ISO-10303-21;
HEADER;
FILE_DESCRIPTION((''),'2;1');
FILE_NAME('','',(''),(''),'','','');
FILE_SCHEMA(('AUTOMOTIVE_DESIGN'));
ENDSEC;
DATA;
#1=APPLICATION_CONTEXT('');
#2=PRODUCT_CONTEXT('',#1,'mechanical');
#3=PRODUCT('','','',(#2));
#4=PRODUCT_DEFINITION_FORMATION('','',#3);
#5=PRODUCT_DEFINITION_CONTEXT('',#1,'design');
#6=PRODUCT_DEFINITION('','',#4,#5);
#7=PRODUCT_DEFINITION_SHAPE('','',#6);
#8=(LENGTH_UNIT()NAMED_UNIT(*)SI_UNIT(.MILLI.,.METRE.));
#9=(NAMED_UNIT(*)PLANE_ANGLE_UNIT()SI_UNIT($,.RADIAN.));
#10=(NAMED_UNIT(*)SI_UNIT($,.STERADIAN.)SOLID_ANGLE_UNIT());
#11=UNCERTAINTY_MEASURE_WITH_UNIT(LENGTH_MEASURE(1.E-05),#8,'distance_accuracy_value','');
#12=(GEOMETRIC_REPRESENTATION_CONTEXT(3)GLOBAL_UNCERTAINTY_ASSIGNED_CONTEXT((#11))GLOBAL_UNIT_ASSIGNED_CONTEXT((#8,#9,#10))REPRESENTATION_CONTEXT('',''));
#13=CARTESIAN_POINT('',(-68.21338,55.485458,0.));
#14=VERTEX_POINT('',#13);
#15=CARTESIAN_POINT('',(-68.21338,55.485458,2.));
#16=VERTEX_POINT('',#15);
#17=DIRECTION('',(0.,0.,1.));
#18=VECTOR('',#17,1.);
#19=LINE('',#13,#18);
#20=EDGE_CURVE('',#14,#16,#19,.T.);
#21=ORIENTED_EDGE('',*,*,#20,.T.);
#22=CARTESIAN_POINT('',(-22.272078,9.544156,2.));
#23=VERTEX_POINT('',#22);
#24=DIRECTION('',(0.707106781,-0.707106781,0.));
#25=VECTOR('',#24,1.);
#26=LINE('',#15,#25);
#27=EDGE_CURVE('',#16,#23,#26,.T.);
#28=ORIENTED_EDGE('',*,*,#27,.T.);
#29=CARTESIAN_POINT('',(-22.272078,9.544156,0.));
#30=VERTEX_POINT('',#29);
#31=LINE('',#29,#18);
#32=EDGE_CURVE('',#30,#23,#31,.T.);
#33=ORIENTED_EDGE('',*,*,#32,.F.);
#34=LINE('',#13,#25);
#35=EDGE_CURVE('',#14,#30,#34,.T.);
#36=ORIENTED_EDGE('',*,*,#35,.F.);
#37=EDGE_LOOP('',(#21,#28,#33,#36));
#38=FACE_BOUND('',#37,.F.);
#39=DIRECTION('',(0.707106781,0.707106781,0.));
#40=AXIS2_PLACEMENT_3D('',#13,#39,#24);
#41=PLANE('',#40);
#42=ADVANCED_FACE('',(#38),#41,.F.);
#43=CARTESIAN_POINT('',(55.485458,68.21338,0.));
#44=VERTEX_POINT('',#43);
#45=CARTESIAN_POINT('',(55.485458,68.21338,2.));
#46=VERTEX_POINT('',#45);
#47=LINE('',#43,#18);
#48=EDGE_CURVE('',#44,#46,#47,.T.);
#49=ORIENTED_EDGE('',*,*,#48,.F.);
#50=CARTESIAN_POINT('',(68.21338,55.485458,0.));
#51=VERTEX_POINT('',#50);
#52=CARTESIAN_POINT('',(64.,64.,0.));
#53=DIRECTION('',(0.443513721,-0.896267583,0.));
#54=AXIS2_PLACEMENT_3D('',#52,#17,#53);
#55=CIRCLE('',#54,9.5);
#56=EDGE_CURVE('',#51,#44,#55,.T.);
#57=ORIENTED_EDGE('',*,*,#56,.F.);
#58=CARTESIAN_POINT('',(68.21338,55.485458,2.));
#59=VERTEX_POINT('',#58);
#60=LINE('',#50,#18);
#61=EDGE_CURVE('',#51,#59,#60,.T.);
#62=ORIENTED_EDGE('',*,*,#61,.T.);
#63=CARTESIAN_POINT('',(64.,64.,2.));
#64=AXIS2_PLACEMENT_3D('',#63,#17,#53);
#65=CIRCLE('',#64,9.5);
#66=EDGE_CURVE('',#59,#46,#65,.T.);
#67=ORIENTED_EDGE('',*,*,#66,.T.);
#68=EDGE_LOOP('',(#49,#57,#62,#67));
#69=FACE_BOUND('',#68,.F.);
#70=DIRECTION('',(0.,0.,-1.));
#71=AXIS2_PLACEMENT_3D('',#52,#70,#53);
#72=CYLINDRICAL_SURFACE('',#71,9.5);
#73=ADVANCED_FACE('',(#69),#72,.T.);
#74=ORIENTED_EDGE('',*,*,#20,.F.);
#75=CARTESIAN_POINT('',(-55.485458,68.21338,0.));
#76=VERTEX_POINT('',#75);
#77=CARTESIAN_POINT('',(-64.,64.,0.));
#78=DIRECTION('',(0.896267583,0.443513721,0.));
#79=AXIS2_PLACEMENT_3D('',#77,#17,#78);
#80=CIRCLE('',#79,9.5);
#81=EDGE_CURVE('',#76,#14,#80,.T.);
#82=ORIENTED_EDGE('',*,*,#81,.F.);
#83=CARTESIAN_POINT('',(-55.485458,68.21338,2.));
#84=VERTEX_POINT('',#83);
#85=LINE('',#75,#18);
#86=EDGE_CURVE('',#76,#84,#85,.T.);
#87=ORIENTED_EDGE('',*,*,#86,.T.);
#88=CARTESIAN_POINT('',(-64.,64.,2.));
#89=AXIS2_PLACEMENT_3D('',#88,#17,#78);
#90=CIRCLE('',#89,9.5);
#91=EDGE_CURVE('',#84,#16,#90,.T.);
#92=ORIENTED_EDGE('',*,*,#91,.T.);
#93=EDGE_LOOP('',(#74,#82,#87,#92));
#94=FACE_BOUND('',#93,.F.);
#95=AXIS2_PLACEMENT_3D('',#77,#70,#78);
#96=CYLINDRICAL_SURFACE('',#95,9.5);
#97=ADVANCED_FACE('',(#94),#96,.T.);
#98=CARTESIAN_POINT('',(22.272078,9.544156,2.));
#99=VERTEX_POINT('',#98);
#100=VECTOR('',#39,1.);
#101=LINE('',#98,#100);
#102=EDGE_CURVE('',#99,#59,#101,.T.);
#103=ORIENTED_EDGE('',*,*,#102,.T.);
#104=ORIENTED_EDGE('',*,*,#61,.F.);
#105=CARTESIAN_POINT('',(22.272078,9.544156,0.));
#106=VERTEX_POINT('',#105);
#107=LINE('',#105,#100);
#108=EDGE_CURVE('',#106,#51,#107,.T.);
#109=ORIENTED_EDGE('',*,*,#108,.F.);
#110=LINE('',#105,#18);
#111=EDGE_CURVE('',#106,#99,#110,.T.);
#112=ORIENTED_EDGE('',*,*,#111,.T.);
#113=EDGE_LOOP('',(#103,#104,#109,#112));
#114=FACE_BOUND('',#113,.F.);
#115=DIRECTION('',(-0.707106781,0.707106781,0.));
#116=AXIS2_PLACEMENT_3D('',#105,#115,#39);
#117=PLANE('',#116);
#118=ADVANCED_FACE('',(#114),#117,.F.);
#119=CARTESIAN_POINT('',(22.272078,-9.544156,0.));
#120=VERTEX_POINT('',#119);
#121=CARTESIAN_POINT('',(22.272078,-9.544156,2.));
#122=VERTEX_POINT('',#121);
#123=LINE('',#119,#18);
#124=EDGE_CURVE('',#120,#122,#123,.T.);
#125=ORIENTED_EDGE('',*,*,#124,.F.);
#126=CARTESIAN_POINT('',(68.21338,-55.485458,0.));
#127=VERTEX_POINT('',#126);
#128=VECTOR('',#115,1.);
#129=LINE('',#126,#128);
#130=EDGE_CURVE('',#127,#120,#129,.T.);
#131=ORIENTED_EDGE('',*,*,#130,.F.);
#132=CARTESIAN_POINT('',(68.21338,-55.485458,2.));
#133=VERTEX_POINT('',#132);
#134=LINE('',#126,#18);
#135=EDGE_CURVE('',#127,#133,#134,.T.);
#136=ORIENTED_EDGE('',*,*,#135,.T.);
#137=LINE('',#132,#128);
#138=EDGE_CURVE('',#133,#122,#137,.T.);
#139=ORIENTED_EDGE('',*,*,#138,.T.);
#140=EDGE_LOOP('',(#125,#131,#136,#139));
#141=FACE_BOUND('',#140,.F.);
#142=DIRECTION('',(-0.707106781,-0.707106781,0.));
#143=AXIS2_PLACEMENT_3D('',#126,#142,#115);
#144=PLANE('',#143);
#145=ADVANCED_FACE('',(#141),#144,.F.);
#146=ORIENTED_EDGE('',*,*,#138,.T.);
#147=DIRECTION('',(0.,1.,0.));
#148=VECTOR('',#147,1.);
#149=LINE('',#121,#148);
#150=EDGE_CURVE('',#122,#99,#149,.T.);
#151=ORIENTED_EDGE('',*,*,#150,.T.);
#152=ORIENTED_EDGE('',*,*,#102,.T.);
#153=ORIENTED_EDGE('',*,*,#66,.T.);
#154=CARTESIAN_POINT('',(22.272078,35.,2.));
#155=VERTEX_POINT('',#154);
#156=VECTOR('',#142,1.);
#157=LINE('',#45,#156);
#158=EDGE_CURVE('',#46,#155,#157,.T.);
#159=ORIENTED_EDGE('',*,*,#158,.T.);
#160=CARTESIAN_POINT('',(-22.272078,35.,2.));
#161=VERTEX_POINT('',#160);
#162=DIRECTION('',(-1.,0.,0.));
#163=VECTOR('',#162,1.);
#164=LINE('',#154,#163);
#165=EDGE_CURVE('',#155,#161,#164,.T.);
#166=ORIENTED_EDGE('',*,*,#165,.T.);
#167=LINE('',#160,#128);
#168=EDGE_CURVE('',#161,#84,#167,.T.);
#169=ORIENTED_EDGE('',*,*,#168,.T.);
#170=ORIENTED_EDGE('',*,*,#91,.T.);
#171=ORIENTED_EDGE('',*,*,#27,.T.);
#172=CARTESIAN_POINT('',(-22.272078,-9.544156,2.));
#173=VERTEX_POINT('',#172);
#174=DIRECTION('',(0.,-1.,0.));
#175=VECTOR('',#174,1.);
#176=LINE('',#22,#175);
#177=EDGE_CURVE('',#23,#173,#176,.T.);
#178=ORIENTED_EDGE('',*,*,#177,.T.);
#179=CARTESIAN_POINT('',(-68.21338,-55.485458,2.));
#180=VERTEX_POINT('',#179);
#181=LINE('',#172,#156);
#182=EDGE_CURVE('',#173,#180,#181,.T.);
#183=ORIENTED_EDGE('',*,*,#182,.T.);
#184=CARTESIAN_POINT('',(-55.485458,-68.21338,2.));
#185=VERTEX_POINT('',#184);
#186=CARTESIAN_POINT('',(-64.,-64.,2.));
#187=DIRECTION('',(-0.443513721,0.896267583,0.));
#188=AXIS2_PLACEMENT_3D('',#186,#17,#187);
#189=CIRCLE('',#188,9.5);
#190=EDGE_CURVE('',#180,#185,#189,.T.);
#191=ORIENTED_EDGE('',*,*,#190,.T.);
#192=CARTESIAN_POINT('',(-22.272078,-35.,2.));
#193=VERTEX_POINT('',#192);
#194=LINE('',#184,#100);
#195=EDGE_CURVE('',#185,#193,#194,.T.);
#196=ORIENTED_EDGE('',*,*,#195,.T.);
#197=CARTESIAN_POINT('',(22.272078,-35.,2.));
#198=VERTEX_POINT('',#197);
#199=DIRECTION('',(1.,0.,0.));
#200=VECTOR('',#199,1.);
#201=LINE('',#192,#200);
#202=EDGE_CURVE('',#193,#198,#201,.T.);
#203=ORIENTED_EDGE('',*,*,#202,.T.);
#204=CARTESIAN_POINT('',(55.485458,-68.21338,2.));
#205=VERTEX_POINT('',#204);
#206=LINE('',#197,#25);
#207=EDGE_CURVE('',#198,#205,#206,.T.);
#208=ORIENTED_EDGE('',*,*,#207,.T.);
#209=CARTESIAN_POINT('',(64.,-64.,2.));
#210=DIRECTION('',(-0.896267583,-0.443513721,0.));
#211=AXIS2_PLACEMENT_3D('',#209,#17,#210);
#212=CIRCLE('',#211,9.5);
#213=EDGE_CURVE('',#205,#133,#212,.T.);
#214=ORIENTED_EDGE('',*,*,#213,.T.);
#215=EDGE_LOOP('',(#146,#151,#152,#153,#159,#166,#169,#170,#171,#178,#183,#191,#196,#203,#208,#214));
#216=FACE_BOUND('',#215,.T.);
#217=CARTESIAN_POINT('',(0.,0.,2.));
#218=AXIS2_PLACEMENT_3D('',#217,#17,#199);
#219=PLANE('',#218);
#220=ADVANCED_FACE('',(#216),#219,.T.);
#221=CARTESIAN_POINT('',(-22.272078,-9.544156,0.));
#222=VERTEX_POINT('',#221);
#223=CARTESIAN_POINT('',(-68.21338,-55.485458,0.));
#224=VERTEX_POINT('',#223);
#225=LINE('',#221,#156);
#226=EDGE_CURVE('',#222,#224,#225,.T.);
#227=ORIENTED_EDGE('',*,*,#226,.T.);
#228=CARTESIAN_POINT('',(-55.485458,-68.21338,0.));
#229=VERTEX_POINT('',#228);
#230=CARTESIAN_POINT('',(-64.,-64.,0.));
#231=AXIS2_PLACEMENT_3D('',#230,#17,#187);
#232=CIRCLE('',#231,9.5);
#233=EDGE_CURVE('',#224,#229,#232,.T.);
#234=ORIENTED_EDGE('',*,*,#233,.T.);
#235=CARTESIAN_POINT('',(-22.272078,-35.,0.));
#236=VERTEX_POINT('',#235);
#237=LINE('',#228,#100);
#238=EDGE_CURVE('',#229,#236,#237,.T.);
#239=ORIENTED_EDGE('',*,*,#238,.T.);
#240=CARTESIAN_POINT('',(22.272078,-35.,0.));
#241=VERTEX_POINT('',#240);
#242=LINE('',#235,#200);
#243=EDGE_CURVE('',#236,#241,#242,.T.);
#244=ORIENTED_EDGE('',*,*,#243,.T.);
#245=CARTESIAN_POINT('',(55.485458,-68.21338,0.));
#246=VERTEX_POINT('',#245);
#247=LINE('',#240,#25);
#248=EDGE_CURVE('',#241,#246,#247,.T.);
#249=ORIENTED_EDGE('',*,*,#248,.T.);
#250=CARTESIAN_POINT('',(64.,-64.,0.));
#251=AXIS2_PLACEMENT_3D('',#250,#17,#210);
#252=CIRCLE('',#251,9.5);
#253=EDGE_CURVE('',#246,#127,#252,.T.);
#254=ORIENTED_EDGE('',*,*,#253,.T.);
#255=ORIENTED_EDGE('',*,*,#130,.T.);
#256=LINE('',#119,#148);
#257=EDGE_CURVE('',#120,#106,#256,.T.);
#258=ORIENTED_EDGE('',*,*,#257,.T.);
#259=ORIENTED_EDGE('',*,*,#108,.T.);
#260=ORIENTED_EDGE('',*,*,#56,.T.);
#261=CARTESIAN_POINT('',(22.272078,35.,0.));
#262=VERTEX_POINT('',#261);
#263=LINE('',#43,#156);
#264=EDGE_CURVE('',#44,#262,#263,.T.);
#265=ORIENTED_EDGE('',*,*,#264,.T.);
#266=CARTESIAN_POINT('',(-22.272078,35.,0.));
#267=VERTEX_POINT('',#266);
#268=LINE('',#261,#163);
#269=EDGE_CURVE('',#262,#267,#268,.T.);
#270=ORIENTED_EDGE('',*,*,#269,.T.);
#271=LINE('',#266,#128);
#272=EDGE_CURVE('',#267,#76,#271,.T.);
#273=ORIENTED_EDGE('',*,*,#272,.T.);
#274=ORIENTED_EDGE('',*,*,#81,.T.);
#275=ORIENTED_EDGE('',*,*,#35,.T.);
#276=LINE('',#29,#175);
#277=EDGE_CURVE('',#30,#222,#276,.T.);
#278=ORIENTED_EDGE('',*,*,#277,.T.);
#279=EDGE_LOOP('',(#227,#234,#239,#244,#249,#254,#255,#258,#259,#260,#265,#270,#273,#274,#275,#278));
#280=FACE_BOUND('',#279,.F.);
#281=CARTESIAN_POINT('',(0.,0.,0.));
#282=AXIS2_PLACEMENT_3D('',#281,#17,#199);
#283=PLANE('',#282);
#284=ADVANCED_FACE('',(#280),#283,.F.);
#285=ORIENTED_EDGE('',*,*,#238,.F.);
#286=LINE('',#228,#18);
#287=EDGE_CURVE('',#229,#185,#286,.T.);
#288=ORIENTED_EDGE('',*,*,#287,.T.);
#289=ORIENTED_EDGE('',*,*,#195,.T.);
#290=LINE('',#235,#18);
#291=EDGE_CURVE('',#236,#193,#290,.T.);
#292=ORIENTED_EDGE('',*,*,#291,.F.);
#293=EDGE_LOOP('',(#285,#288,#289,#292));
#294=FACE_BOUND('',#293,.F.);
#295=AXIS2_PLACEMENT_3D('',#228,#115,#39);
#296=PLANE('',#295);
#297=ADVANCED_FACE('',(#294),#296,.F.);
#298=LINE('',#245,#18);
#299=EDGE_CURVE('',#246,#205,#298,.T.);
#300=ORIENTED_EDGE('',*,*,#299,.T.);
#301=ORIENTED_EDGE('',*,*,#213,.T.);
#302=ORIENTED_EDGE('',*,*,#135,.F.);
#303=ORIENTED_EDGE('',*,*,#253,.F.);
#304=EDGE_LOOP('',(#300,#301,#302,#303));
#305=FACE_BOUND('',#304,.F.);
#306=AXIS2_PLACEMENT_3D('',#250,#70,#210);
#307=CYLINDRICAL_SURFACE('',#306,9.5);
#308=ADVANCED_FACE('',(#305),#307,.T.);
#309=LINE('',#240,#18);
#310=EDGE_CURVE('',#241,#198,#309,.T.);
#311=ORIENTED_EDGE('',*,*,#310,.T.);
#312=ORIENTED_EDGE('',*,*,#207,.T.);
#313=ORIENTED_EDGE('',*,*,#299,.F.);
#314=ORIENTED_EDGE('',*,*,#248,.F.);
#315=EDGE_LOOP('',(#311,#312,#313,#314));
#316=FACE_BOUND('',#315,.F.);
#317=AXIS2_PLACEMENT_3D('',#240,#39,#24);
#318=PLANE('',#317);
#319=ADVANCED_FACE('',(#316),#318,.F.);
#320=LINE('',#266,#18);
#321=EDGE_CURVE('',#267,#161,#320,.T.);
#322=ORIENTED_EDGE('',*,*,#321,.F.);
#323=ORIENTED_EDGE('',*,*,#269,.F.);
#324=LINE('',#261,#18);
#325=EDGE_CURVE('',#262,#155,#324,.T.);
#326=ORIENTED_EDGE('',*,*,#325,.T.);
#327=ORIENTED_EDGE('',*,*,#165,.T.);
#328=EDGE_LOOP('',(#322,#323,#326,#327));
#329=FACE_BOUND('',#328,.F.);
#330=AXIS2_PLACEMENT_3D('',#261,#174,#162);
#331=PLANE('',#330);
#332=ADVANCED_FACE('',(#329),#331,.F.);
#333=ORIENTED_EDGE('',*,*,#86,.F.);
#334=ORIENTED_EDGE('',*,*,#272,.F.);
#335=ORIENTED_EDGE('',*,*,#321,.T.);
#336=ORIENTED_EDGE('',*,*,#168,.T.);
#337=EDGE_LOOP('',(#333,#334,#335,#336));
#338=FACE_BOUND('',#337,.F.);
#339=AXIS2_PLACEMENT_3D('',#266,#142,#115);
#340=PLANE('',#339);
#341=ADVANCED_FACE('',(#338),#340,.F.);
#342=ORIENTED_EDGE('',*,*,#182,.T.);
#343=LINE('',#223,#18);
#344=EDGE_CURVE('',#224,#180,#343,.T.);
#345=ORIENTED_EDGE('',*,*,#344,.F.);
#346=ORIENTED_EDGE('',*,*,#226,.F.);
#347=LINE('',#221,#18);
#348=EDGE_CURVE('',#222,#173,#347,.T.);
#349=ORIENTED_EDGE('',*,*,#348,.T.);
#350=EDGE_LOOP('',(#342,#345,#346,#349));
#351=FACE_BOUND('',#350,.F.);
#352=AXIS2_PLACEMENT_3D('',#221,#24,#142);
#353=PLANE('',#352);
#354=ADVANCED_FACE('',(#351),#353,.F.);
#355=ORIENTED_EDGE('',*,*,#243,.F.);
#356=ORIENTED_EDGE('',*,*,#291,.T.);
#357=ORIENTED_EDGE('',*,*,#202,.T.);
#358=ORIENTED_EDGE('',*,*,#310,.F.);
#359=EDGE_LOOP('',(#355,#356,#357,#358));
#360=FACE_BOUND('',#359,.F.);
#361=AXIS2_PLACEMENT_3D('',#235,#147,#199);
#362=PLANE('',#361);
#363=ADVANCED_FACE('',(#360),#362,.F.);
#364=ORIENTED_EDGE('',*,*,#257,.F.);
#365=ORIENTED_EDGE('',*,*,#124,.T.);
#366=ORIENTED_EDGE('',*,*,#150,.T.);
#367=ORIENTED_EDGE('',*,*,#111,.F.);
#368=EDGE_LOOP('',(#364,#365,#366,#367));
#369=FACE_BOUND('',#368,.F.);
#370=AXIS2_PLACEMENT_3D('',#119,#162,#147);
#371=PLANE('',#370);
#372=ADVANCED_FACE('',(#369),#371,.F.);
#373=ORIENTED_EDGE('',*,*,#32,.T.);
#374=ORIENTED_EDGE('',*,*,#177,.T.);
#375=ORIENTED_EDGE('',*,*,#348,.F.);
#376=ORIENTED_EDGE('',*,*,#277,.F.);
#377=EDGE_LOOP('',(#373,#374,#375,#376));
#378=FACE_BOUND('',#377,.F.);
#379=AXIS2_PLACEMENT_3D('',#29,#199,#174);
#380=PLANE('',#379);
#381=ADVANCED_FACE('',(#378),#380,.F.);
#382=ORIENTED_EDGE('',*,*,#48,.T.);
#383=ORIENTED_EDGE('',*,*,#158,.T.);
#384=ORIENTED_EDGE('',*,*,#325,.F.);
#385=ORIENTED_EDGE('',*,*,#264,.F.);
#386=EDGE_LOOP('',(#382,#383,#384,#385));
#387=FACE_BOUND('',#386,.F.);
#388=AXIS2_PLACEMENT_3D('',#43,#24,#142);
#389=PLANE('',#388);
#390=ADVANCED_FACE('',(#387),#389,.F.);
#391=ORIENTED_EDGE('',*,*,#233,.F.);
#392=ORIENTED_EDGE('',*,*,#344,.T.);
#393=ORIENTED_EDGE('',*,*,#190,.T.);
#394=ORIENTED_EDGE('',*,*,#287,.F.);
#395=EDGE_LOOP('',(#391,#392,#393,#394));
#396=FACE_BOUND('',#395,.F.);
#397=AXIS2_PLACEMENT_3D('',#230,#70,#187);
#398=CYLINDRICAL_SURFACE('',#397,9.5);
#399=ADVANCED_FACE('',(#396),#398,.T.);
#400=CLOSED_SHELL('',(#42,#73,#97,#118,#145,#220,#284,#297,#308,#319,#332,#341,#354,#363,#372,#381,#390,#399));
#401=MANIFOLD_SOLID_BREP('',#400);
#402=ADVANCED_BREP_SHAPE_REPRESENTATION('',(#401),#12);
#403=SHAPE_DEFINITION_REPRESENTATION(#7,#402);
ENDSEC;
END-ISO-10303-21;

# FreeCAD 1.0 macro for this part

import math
import FreeCAD as App
import Part
import Sketcher
from FreeCAD import Vector

doc = App.newDocument("Part")
body = doc.addObject("PartDesign::Body", "Body")

# Sketch on XY plane
sketch1 = body.newObject("Sketcher::SketchObject", "Sketch")
sketch1.AttachmentSupport = (doc.getObject("XY_Plane"), [""])
sketch1.MapMode = "FlatFace"
sketch1.addGeometry(Part.LineSegment(Vector(-22, 35, 0), Vector(-55, 68, 0)), False)
sketch1.addGeometry(Part.ArcOfCircle(Part.Circle(Vector(-64, 64, 0), Vector(0, 0, 1), 9), math.radians(26), math.radians(244)), False)
sketch1.addGeometry(Part.LineSegment(Vector(-68, 55, 0), Vector(-22, 10, 0)), False)
sketch1.addGeometry(Part.LineSegment(Vector(-22, 10, 0), Vector(-22, -10, 0)), False)
sketch1.addGeometry(Part.LineSegment(Vector(-22, -10, 0), Vector(-68, -55, 0)), False)
sketch1.addGeometry(Part.ArcOfCircle(Part.Circle(Vector(-64, -64, 0), Vector(0, 0, 1), 9), math.radians(116), math.radians(334)), False)
sketch1.addGeometry(Part.LineSegment(Vector(-55, -68, 0), Vector(-22, -35, 0)), False)
sketch1.addGeometry(Part.LineSegment(Vector(-22, -35, 0), Vector(22, -35, 0)), False)
sketch1.addGeometry(Part.LineSegment(Vector(22, -35, 0), Vector(55, -68, 0)), False)
sketch1.addGeometry(Part.ArcOfCircle(Part.Circle(Vector(64, -64, 0), Vector(0, 0, 1), 9), math.radians(-154), math.radians(64)), False)
sketch1.addGeometry(Part.LineSegment(Vector(68, -55, 0), Vector(22, -10, 0)), False)
sketch1.addGeometry(Part.LineSegment(Vector(22, -10, 0), Vector(22, 10, 0)), False)
sketch1.addGeometry(Part.LineSegment(Vector(22, 10, 0), Vector(68, 55, 0)), False)
sketch1.addGeometry(Part.ArcOfCircle(Part.Circle(Vector(64, 64, 0), Vector(0, 0, 1), 9), math.radians(-64), math.radians(154)), False)
sketch1.addGeometry(Part.LineSegment(Vector(55, 68, 0), Vector(22, 35, 0)), False)
sketch1.addGeometry(Part.LineSegment(Vector(22, 35, 0), Vector(-22, 35, 0)), False)
sketch1.addConstraint(Sketcher.Constraint("Coincident", 0, 2, 1, 1))
sketch1.addConstraint(Sketcher.Constraint("Coincident", 1, 2, 2, 1))
sketch1.addConstraint(Sketcher.Constraint("Coincident", 2, 2, 3, 1))
sketch1.addConstraint(Sketcher.Constraint("Coincident", 3, 2, 4, 1))
sketch1.addConstraint(Sketcher.Constraint("Coincident", 4, 2, 5, 1))
sketch1.addConstraint(Sketcher.Constraint("Coincident", 5, 2, 6, 1))
sketch1.addConstraint(Sketcher.Constraint("Coincident", 6, 2, 7, 1))
sketch1.addConstraint(Sketcher.Constraint("Coincident", 7, 2, 8, 1))
sketch1.addConstraint(Sketcher.Constraint("Coincident", 8, 2, 9, 1))
sketch1.addConstraint(Sketcher.Constraint("Coincident", 9, 2, 10, 1))
sketch1.addConstraint(Sketcher.Constraint("Coincident", 10, 2, 11, 1))
sketch1.addConstraint(Sketcher.Constraint("Coincident", 11, 2, 12, 1))
sketch1.addConstraint(Sketcher.Constraint("Coincident", 12, 2, 13, 1))
sketch1.addConstraint(Sketcher.Constraint("Coincident", 13, 2, 14, 1))
sketch1.addConstraint(Sketcher.Constraint("Coincident", 14, 2, 15, 1))
sketch1.addConstraint(Sketcher.Constraint("Coincident", 15, 2, 0, 1))
sketch1.addConstraint(Sketcher.Constraint("Vertical", 3))
sketch1.addConstraint(Sketcher.Constraint("Horizontal", 7))
sketch1.addConstraint(Sketcher.Constraint("Vertical", 11))
sketch1.addConstraint(Sketcher.Constraint("Horizontal", 15))
sketch1.addConstraint(Sketcher.Constraint("Equal", 1, 5))
sketch1.addConstraint(Sketcher.Constraint("Equal", 5, 9))
sketch1.addConstraint(Sketcher.Constraint("Equal", 9, 13))
sketch1.addConstraint(Sketcher.Constraint("Symmetric", 1, 3, 9, 3, -1, 1))
sketch1.addConstraint(Sketcher.Constraint("Symmetric", 5, 3, 13, 3, -1, 1))
sketch1.addConstraint(Sketcher.Constraint("Symmetric", 2, 2, 10, 2, -1, 1))
sketch1.addConstraint(Sketcher.Constraint("Symmetric", 6, 2, 14, 2, -1, 1))
sketch1.addConstraint(Sketcher.Constraint("Symmetric", 5, 3, 9, 3, -2))
sketch1.addConstraint(Sketcher.Constraint("Parallel", 0, 2))
sketch1.addConstraint(Sketcher.Constraint("Perpendicular", 2, 4))
sketch1.addConstraint(Sketcher.Constraint("Parallel", 4, 6))
sketch1.addConstraint(Sketcher.Constraint("Perpendicular", 6, 8))
sketch1.addConstraint(Sketcher.Constraint("Parallel", 8, 10))
sketch1.addConstraint(Sketcher.Constraint("Perpendicular", 10, 12))
sketch1.addConstraint(Sketcher.Constraint("Parallel", 12, 14))
sketch1.addConstraint(Sketcher.Constraint("Horizontal", 5, 2, 8, 2))
sketch1.addConstraint(Sketcher.Constraint("Horizontal", 4, 2, 9, 2))
sketch1.addConstraint(Sketcher.Constraint("Horizontal", 3, 2, 10, 2))
sketch1.addConstraint(Sketcher.Constraint("Horizontal", 2, 2, 11, 2))
sketch1.addConstraint(Sketcher.Constraint("Horizontal", 0, 2, 13, 2))
sketch1.addConstraint(Sketcher.Constraint("Vertical", 3, 2, 6, 2))
sketch1.addConstraint(Sketcher.Constraint("Radius", 1, 9.5))
sketch1.addConstraint(Sketcher.Constraint("DistanceX", 1, 3, -1, 1, 64.0))
sketch1.addConstraint(Sketcher.Constraint("DistanceY", -1, 1, 1, 3, 64.0))
sketch1.addConstraint(Sketcher.Constraint("DistanceY", 6, 2, -1, 1, 35.0))
sketch1.addConstraint(Sketcher.Constraint("DistanceY", 3, 2, 3, 1, 19.088312))
sketch1.addConstraint(Sketcher.Constraint("DistanceY", 2, 2, 1, 2, 45.941302))
pad1 = body.newObject("PartDesign::Pad", "Pad")
pad1.Profile = sketch1
pad1.Length = 2

doc.recompute()
